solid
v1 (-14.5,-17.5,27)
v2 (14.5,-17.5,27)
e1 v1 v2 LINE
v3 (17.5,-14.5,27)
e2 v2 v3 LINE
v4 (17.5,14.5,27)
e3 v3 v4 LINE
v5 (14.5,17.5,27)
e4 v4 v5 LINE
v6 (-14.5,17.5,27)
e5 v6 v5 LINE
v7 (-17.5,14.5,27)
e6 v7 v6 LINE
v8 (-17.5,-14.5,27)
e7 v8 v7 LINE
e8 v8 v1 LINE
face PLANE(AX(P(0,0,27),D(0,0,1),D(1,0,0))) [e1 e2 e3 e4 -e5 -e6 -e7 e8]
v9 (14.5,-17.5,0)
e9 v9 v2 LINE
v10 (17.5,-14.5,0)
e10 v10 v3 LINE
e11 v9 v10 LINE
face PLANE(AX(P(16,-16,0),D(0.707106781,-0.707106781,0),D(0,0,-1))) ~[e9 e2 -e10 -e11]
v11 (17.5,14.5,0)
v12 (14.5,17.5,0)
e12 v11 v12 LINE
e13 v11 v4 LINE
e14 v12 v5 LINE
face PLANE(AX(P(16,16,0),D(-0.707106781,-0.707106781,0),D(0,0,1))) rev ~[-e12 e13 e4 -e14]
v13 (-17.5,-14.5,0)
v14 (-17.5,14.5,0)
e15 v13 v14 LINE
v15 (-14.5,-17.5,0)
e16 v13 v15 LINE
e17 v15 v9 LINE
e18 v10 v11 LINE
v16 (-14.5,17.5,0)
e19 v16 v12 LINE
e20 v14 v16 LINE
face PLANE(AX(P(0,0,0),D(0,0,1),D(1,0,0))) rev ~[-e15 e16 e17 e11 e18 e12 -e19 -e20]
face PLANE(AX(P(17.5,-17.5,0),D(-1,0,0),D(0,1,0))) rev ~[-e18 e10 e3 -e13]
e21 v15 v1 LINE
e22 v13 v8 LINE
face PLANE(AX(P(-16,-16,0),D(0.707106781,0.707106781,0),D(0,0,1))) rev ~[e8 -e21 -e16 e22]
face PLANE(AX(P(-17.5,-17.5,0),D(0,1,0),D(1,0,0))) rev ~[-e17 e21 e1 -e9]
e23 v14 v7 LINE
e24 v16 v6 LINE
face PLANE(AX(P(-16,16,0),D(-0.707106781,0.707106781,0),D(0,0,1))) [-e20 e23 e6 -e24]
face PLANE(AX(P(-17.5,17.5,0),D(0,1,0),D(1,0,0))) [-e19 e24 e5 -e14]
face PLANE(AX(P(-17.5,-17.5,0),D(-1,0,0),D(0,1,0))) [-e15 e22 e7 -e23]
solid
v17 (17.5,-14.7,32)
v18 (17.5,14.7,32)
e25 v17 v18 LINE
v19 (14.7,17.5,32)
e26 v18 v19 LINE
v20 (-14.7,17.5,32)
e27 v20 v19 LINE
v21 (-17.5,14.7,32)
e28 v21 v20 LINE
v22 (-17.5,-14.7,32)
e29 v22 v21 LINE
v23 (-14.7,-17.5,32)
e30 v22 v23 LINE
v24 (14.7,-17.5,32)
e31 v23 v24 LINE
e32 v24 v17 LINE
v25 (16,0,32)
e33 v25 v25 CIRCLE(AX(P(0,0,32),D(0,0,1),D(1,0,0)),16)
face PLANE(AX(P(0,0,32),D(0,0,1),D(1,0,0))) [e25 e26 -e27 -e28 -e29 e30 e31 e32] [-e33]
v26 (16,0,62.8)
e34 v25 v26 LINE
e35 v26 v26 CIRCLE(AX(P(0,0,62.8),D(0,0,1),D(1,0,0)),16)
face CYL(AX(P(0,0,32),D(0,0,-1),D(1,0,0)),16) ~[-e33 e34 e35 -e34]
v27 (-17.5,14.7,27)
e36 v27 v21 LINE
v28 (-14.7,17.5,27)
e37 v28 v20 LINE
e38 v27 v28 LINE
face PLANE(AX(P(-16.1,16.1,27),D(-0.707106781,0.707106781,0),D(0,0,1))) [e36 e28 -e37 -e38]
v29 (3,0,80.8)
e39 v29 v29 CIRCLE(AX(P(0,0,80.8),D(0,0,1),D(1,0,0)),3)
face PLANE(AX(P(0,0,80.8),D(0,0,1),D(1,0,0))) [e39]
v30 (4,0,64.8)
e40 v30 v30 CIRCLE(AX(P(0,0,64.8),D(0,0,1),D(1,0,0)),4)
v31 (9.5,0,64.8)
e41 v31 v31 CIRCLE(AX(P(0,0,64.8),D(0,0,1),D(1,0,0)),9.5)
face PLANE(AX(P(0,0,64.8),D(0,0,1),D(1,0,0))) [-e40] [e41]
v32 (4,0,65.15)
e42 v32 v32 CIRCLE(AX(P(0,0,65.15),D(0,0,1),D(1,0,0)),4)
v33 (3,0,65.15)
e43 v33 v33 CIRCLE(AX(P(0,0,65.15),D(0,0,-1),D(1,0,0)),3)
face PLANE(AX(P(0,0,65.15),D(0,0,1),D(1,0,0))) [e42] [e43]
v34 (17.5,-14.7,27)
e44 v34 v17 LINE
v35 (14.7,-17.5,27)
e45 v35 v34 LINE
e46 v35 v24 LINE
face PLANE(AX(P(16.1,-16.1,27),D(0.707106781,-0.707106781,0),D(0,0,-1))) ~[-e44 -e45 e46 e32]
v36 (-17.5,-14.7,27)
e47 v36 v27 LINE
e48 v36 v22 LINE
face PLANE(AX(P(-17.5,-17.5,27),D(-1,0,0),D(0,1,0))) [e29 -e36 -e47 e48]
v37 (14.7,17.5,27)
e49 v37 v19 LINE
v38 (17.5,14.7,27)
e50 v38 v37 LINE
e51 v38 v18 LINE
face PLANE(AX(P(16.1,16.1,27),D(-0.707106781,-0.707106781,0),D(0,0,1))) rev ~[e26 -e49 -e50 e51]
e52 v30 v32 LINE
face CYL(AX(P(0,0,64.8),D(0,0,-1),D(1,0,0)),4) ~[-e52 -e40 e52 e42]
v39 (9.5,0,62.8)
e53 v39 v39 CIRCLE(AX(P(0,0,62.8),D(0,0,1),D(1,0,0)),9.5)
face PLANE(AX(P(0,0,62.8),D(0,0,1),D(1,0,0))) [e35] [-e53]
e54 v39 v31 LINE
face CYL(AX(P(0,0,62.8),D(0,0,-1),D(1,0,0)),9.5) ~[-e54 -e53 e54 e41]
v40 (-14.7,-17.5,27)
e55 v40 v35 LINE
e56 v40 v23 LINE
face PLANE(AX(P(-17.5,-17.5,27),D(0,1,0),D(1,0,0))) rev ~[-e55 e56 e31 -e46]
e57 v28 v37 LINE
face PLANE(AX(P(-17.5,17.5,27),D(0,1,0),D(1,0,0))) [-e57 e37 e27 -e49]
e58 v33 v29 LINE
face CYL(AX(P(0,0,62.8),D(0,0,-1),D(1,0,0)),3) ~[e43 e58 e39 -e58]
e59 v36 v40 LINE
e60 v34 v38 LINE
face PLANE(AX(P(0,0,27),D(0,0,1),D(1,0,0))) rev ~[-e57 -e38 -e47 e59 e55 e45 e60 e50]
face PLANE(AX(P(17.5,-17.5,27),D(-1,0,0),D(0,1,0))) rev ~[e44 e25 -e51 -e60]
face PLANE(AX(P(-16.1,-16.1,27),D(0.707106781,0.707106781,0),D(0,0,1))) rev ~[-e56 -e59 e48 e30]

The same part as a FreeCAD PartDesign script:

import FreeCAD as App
import Part
import Sketcher

V = App.Vector
Q = App.Units.Quantity


def edges_at(feature, points):
    """Names of the edges that pass closest to the given points."""
    edges = feature.Shape.Edges
    near = lambda p: min(range(len(edges)), key=lambda i: edges[i].distToShape(Part.Vertex(*p))[0])
    return sorted({f"Edge{near(p) + 1}" for p in points})

doc = App.newDocument("Part")
body = doc.addObject("PartDesign::Body", "Body")

sketch1 = doc.addObject("Sketcher::SketchObject", "Sketch")
body.addObject(sketch1)
sketch1.AttachmentSupport = (doc.XY_Plane, [""])
sketch1.MapMode = "FlatFace"
sketch1.addGeometry([
    Part.LineSegment(V(-17.5, 17.5, 0), V(-17.5, -17.5, 0)),
    Part.LineSegment(V(-17.5, -17.5, 0), V(17.5, -17.5, 0)),
    Part.LineSegment(V(17.5, -17.5, 0), V(17.5, 17.5, 0)),
    Part.LineSegment(V(17.5, 17.5, 0), V(-17.5, 17.5, 0)),
], False)
sketch1.addConstraint([
    Sketcher.Constraint("Coincident", 0, 2, 1, 1),
    Sketcher.Constraint("Coincident", 1, 2, 2, 1),
    Sketcher.Constraint("Coincident", 2, 2, 3, 1),
    Sketcher.Constraint("Coincident", 3, 2, 0, 1),
    Sketcher.Constraint("Vertical", 0),
    Sketcher.Constraint("Horizontal", 1),
    Sketcher.Constraint("Vertical", 2),
    Sketcher.Constraint("Horizontal", 3),
    Sketcher.Constraint("Symmetric", 0, 2, 2, 2, -1, 1),
    Sketcher.Constraint("Equal", 3, 0),
    Sketcher.Constraint("DistanceX", 1, 1, 1, 2, Q("35 mm")),
])
pad1 = doc.addObject("PartDesign::Pad", "Pad")
body.addObject(pad1)
pad1.Profile = sketch1
pad1.Length = 27
doc.recompute()

chamfer = doc.addObject("PartDesign::Chamfer", "Chamfer")
body.addObject(chamfer)
chamfer.Base = (pad1, edges_at(pad1, [
    (17.5, -17.5, 13.5),
    (-17.5, -17.5, 13.5),
    (-17.5, 17.5, 13.5),
    (17.5, 17.5, 13.5),
]))
chamfer.Size = 3
body2 = doc.addObject("PartDesign::Body", "Body001")

sketch2 = doc.addObject("Sketcher::SketchObject", "Sketch001")
body2.addObject(sketch2)
sketch2.AttachmentSupport = (doc.getObject("XY_Plane001"), [""])
sketch2.MapMode = "FlatFace"
sketch2.AttachmentOffset = App.Placement(V(0, 0, 27), App.Rotation())
sketch2.addGeometry([
    Part.LineSegment(V(-17.5, 17.5, 0), V(-17.5, -17.5, 0)),
    Part.LineSegment(V(-17.5, -17.5, 0), V(17.5, -17.5, 0)),
    Part.LineSegment(V(17.5, -17.5, 0), V(17.5, 17.5, 0)),
    Part.LineSegment(V(17.5, 17.5, 0), V(-17.5, 17.5, 0)),
], False)
sketch2.addConstraint([
    Sketcher.Constraint("Coincident", 0, 2, 1, 1),
    Sketcher.Constraint("Coincident", 1, 2, 2, 1),
    Sketcher.Constraint("Coincident", 2, 2, 3, 1),
    Sketcher.Constraint("Coincident", 3, 2, 0, 1),
    Sketcher.Constraint("Vertical", 0),
    Sketcher.Constraint("Horizontal", 1),
    Sketcher.Constraint("Vertical", 2),
    Sketcher.Constraint("Horizontal", 3),
    Sketcher.Constraint("Symmetric", 0, 2, 2, 2, -1, 1),
    Sketcher.Constraint("Equal", 3, 0),
    Sketcher.Constraint("DistanceX", 1, 1, 1, 2, Q("35 mm")),
])
pad2 = doc.addObject("PartDesign::Pad", "Pad001")
body2.addObject(pad2)
pad2.Profile = sketch2
pad2.Length = 5
doc.recompute()

chamfer2 = doc.addObject("PartDesign::Chamfer", "Chamfer001")
body2.addObject(chamfer2)
chamfer2.Base = (pad2, edges_at(pad2, [
    (17.5, -17.5, 29.5),
    (-17.5, -17.5, 29.5),
    (-17.5, 17.5, 29.5),
    (17.5, 17.5, 29.5),
]))
chamfer2.Size = 2.8

sketch3 = doc.addObject("Sketcher::SketchObject", "Sketch002")
body2.addObject(sketch3)
sketch3.AttachmentSupport = (doc.getObject("XY_Plane001"), [""])
sketch3.MapMode = "FlatFace"
sketch3.AttachmentOffset = App.Placement(V(0, 0, 32), App.Rotation())
sketch3.addGeometry(Part.Circle(V(0, 0, 0), V(0, 0, 1), 16), False)
sketch3.addConstraint([
    Sketcher.Constraint("Coincident", 0, 3, -1, 1),
    Sketcher.Constraint("Diameter", 0, Q("32 mm")),
])
pad3 = doc.addObject("PartDesign::Pad", "Pad002")
body2.addObject(pad3)
pad3.Profile = sketch3
pad3.Length = 30.8

sketch4 = doc.addObject("Sketcher::SketchObject", "Sketch003")
body2.addObject(sketch4)
sketch4.AttachmentSupport = (doc.getObject("XY_Plane001"), [""])
sketch4.MapMode = "FlatFace"
sketch4.AttachmentOffset = App.Placement(V(0, 0, 62.8), App.Rotation())
sketch4.addGeometry(Part.Circle(V(0, 0, 0), V(0, 0, 1), 9.5), False)
sketch4.addConstraint([
    Sketcher.Constraint("Coincident", 0, 3, -1, 1),
    Sketcher.Constraint("Diameter", 0, Q("19 mm")),
])
pad4 = doc.addObject("PartDesign::Pad", "Pad003")
body2.addObject(pad4)
pad4.Profile = sketch4
pad4.Length = 2

sketch5 = doc.addObject("Sketcher::SketchObject", "Sketch004")
body2.addObject(sketch5)
sketch5.AttachmentSupport = (doc.getObject("XY_Plane001"), [""])
sketch5.MapMode = "FlatFace"
sketch5.AttachmentOffset = App.Placement(V(0, 0, 62.8), App.Rotation())
sketch5.addGeometry(Part.Circle(V(0, 0, 0), V(0, 0, 1), 3), False)
sketch5.addConstraint([
    Sketcher.Constraint("Coincident", 0, 3, -1, 1),
    Sketcher.Constraint("Diameter", 0, Q("6 mm")),
])
pad5 = doc.addObject("PartDesign::Pad", "Pad004")
body2.addObject(pad5)
pad5.Profile = sketch5
pad5.Length = 18

sketch6 = doc.addObject("Sketcher::SketchObject", "Sketch005")
body2.addObject(sketch6)
sketch6.AttachmentSupport = (doc.getObject("XY_Plane001"), [""])
sketch6.MapMode = "FlatFace"
sketch6.AttachmentOffset = App.Placement(V(0, 0, 64.8), App.Rotation())
sketch6.addGeometry(Part.Circle(V(0, 0, 0), V(0, 0, 1), 4), False)
sketch6.addConstraint([
    Sketcher.Constraint("Coincident", 0, 3, -1, 1),
    Sketcher.Constraint("Diameter", 0, Q("8 mm")),
])
pad6 = doc.addObject("PartDesign::Pad", "Pad005")
body2.addObject(pad6)
pad6.Profile = sketch6
pad6.Length = 0.35

doc.recompute()
